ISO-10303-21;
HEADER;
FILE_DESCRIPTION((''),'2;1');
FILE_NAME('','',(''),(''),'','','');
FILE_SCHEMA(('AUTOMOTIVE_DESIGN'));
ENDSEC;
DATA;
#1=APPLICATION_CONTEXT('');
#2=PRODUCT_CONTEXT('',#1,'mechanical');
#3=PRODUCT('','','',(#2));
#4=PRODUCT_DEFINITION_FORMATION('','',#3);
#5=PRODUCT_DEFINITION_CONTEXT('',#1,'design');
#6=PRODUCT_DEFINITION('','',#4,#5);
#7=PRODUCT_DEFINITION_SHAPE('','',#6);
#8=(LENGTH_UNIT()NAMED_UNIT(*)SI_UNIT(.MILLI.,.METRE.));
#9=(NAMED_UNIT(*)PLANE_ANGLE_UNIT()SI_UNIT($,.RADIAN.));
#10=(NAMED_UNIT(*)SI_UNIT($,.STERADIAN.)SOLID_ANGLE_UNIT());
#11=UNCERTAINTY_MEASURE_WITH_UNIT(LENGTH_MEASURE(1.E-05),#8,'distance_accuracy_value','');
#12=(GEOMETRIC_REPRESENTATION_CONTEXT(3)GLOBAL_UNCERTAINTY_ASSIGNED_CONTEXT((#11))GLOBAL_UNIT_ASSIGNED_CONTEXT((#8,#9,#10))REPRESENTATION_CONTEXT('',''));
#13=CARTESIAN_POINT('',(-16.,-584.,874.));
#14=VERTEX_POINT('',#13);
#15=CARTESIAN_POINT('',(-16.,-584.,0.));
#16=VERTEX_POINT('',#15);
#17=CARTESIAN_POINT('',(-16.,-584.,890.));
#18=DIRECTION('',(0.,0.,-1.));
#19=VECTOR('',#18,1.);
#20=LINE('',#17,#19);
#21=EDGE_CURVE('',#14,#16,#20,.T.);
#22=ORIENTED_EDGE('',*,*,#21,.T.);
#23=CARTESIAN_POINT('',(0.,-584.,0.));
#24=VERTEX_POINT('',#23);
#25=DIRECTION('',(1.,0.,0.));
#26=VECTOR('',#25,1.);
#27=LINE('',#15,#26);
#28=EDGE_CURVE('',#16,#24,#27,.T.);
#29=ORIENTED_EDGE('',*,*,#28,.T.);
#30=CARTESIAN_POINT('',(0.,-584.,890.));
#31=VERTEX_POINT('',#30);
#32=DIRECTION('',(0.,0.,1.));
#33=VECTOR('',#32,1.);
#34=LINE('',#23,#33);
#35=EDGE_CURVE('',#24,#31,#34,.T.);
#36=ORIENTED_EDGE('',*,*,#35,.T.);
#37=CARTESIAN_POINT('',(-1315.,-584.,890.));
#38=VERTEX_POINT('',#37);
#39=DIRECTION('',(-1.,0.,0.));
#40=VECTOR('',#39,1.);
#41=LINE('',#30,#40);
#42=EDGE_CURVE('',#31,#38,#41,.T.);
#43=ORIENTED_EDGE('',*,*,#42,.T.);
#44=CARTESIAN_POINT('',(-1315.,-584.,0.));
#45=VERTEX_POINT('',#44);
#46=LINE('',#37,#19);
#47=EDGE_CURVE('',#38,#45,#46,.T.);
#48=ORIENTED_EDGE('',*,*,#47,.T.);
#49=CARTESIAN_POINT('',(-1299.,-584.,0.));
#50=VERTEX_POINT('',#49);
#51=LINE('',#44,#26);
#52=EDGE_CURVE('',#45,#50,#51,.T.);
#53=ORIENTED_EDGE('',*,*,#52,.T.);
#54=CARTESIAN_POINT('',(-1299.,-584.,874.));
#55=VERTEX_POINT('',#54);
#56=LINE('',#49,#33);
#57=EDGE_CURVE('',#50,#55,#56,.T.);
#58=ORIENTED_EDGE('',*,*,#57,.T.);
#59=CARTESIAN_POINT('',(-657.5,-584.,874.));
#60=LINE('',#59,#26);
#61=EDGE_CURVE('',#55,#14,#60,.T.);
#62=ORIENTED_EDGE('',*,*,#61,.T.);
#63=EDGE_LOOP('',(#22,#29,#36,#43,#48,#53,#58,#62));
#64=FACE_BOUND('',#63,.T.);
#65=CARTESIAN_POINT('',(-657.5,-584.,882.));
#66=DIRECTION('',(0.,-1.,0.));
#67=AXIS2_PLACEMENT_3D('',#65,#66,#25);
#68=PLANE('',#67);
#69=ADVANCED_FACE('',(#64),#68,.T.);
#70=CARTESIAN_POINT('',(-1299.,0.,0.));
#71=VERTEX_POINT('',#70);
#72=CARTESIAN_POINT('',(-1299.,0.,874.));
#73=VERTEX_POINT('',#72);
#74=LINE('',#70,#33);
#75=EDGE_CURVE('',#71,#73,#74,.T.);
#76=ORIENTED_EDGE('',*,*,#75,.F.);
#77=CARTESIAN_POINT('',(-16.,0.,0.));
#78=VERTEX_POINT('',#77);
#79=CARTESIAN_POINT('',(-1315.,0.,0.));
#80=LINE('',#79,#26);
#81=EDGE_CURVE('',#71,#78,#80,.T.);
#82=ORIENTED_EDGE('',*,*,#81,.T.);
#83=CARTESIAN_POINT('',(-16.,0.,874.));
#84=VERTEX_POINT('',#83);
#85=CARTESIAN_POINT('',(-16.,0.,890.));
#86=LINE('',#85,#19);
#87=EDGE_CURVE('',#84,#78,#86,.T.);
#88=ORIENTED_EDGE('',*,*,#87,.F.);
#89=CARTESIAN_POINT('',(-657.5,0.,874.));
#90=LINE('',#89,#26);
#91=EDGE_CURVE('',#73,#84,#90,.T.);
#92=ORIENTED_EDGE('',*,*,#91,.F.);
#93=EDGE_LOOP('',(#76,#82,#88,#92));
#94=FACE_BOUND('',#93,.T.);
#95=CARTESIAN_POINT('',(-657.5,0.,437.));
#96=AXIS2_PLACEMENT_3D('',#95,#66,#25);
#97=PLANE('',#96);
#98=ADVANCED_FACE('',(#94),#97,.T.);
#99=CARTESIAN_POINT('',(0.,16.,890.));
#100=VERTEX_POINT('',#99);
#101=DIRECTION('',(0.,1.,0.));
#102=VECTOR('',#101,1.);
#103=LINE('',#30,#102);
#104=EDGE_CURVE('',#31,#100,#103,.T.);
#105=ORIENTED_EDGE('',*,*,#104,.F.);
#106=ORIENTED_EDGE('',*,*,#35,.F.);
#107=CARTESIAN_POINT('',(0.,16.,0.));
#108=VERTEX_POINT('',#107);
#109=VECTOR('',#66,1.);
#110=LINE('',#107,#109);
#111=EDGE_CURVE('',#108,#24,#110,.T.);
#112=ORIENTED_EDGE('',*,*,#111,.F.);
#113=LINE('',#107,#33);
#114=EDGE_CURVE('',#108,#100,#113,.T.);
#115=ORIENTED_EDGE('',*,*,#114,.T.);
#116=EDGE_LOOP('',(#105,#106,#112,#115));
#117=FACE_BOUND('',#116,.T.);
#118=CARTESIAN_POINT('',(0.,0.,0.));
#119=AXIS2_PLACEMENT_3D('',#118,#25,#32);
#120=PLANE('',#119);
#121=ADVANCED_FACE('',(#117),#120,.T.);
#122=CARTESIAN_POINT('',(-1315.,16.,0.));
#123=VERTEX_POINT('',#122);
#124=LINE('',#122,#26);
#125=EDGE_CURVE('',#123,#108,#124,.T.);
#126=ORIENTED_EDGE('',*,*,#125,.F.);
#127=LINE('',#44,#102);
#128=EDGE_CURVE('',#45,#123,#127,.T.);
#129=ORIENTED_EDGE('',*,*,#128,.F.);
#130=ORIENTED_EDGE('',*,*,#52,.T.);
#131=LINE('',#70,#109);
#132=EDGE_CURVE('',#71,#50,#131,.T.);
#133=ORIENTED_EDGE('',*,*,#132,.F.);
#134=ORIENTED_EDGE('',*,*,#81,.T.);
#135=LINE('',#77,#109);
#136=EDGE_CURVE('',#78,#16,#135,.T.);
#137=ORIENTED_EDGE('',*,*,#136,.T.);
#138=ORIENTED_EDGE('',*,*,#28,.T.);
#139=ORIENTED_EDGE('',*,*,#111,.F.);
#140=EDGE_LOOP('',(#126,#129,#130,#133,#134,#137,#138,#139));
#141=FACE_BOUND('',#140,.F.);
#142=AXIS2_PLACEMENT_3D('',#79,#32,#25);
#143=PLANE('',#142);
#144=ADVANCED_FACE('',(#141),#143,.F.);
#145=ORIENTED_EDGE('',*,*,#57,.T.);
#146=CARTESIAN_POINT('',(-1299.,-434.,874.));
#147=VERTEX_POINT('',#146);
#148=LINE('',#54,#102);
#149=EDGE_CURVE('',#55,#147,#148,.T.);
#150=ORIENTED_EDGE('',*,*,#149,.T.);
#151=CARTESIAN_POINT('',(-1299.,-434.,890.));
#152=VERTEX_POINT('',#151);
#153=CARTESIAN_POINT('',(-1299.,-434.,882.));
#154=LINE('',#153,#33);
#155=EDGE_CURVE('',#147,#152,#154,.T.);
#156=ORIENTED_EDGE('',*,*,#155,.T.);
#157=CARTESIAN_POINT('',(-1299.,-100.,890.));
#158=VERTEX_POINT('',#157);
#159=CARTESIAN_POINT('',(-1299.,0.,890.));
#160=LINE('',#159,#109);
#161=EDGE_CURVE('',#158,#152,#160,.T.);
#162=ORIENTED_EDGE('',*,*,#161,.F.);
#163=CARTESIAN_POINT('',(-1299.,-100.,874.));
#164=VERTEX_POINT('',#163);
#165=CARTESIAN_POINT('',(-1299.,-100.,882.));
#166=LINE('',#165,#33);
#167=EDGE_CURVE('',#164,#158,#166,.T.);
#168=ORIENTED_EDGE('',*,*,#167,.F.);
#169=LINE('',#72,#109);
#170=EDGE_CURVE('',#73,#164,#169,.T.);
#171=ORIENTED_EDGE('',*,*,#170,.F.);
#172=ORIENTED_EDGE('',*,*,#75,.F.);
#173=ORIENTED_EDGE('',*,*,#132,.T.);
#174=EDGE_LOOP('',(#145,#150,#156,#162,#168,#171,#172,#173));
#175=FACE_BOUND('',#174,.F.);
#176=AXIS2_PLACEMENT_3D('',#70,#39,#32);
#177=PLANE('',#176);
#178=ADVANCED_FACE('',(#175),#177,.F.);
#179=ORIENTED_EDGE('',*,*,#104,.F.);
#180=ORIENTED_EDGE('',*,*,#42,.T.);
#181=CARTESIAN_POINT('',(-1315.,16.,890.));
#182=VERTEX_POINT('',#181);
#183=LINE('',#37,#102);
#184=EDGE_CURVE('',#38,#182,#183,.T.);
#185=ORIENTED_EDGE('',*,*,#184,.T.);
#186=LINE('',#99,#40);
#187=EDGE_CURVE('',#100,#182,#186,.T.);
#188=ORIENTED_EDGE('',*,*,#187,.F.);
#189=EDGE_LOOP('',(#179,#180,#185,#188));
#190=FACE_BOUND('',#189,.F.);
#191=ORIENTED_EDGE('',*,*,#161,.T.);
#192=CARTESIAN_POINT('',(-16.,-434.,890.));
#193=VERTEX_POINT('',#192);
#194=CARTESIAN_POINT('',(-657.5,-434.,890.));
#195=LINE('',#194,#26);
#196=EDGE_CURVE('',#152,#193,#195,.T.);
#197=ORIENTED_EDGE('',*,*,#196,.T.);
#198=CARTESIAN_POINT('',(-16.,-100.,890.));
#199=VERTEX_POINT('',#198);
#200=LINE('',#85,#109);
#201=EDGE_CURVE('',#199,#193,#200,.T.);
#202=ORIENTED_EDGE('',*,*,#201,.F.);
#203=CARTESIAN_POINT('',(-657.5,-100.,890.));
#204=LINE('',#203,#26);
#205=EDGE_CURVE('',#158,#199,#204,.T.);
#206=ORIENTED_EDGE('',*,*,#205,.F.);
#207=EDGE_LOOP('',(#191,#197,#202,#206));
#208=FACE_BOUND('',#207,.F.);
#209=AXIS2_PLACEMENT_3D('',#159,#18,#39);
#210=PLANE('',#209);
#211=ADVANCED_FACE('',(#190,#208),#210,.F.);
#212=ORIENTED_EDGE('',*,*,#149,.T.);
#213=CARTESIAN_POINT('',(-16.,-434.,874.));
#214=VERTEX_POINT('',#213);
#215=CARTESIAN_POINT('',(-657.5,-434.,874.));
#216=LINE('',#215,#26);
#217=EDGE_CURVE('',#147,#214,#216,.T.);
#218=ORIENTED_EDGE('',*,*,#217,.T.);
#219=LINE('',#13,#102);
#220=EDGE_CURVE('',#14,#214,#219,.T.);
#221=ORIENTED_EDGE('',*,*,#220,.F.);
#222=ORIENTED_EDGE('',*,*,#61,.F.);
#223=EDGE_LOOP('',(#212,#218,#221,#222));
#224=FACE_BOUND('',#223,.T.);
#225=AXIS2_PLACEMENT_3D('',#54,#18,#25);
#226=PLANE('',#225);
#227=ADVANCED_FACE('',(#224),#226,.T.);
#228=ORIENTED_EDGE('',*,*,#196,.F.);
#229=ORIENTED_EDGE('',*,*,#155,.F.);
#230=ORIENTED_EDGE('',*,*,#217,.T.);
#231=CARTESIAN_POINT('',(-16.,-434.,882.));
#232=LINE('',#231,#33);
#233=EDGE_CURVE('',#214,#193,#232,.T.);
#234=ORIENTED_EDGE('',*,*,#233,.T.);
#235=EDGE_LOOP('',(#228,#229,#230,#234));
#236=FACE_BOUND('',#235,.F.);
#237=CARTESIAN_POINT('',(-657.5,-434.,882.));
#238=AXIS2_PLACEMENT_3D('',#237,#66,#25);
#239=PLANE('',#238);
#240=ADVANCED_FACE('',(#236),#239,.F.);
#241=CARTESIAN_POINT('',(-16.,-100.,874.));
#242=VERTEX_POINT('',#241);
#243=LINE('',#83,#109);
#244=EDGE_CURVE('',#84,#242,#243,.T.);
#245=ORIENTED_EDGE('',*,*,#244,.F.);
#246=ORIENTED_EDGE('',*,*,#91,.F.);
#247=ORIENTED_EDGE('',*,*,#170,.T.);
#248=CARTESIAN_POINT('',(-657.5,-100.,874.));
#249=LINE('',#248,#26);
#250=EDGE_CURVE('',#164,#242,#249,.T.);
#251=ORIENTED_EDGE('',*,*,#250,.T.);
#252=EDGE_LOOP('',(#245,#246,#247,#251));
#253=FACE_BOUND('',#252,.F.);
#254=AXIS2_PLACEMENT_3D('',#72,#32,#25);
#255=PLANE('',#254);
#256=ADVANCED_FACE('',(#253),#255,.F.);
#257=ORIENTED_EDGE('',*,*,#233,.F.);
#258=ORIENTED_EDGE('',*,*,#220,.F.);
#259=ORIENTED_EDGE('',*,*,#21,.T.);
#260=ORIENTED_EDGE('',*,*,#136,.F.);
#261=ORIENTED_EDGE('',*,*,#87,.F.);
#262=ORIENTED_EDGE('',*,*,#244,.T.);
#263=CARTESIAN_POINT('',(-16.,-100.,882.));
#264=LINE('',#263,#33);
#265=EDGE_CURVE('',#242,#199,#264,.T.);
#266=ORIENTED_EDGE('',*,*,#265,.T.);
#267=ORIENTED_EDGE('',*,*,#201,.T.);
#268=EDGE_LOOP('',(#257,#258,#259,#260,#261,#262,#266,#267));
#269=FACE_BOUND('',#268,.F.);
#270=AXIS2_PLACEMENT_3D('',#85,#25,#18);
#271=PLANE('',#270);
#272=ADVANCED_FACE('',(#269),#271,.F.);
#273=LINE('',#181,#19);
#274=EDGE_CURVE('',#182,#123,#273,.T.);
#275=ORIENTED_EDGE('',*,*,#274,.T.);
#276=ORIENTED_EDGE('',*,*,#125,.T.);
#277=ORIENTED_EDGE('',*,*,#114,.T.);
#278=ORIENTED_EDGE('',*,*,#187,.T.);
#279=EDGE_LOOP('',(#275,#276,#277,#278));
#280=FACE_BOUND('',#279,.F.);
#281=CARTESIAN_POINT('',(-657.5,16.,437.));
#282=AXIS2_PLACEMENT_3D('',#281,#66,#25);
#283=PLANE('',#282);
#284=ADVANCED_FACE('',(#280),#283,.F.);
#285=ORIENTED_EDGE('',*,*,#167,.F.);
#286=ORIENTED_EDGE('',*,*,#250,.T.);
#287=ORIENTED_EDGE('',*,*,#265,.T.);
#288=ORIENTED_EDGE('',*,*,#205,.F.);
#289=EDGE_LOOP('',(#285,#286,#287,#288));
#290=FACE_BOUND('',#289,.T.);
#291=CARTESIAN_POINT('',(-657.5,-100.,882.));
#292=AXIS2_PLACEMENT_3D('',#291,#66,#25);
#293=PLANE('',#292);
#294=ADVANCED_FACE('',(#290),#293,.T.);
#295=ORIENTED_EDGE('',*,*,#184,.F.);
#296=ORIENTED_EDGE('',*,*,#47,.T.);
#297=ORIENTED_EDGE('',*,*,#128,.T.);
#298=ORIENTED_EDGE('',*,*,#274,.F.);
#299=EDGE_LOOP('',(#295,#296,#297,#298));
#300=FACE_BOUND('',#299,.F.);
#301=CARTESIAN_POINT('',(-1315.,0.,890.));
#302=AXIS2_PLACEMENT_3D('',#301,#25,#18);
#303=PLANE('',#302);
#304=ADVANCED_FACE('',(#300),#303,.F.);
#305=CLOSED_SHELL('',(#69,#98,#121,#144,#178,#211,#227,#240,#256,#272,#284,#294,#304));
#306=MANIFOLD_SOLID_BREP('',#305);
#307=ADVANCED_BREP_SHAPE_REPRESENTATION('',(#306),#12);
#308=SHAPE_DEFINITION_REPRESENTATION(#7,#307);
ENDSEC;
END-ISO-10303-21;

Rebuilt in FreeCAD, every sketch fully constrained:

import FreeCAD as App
import Part
import Sketcher


def add_polygon(sketch, points):
    """Adds a closed chain of lines whose ends are joined by coincident constraints."""
    first, n = sketch.GeometryCount, len(points)
    for a, b in zip(points, points[1:] + points[:1]):
        sketch.addGeometry(Part.LineSegment(App.Vector(*a, 0), App.Vector(*b, 0)), False)
    for i in range(n):
        sketch.addConstraint(Sketcher.Constraint("Coincident", first + i, 2, first + (i + 1) % n, 1))

doc = App.newDocument("Part")
body = doc.addObject("PartDesign::Body", "Body")

sketch1 = doc.addObject("Sketcher::SketchObject", "Sketch")
body.addObject(sketch1)
sketch1.AttachmentSupport = (doc.XZ_Plane, [""])
sketch1.MapMode = "FlatFace"
add_polygon(sketch1, [(0, 0), (0, 890), (-1315, 890), (-1315, 0)])
sketch1.addConstraint([
    Sketcher.Constraint("Vertical", 0),
    Sketcher.Constraint("Horizontal", 1),
    Sketcher.Constraint("Vertical", 2),
    Sketcher.Constraint("Horizontal", 3),
    Sketcher.Constraint("Coincident", 3, 2, -1, 1),
    Sketcher.Constraint("DistanceX", 1, 2, 1, 1, 1315.0),
    Sketcher.Constraint("DistanceY", 0, 1, 0, 2, 890.0),
])
pad1 = doc.addObject("PartDesign::Pad", "Pad")
body.addObject(pad1)
pad1.Profile = sketch1
pad1.Length = 16
pad1.Reversed = True

sketch2 = doc.addObject("Sketcher::SketchObject", "Sketch001")
body.addObject(sketch2)
sketch2.AttachmentSupport = (doc.XZ_Plane, [""])
sketch2.MapMode = "FlatFace"
add_polygon(sketch2, [(-1315, 0), (-1299, 0), (-1299, 890), (-1315, 890)])
add_polygon(sketch2, [(-16, 0), (0, 0), (0, 890), (-16, 890)])
sketch2.addConstraint([
    Sketcher.Constraint("Horizontal", 0),
    Sketcher.Constraint("Vertical", 1),
    Sketcher.Constraint("Horizontal", 2),
    Sketcher.Constraint("Vertical", 3),
    Sketcher.Constraint("Horizontal", 4),
    Sketcher.Constraint("Vertical", 5),
    Sketcher.Constraint("Horizontal", 6),
    Sketcher.Constraint("Vertical", 7),
    Sketcher.Constraint("Coincident", 4, 2, -1, 1),
    Sketcher.Constraint("PointOnObject", 0, 2, -1),
    Sketcher.Constraint("Horizontal", 2, 2, 5, 2),
    Sketcher.Constraint("Equal", 2, 4),
    Sketcher.Constraint("DistanceX", 0, 1, 0, 2, 16.0),
    Sketcher.Constraint("DistanceY", 1, 1, 1, 2, 890.0),
    Sketcher.Constraint("DistanceX", 0, 2, -1, 1, 1299.0),
])
pad2 = doc.addObject("PartDesign::Pad", "Pad001")
body.addObject(pad2)
pad2.Profile = sketch2
pad2.Length = 584

sketch3 = doc.addObject("Sketcher::SketchObject", "Sketch002")
body.addObject(sketch3)
sketch3.AttachmentSupport = (doc.XZ_Plane, [""])
sketch3.MapMode = "FlatFace"
add_polygon(sketch3, [(-1299, 890), (-1299, 874), (-16, 874), (-16, 890)])
sketch3.addConstraint([
    Sketcher.Constraint("Vertical", 0),
    Sketcher.Constraint("Horizontal", 1),
    Sketcher.Constraint("Vertical", 2),
    Sketcher.Constraint("Horizontal", 3),
    Sketcher.Constraint("DistanceX", 1, 1, 1, 2, 1283.0),
    Sketcher.Constraint("DistanceY", 0, 2, 0, 1, 16.0),
    Sketcher.Constraint("DistanceX", 0, 2, -1, 1, 1299.0),
    Sketcher.Constraint("DistanceY", -1, 1, 0, 2, 874.0),
])
pad3 = doc.addObject("PartDesign::Pad", "Pad002")
body.addObject(pad3)
pad3.Profile = sketch3
pad3.Length = 100

sketch4 = doc.addObject("Sketcher::SketchObject", "Sketch003")
body.addObject(sketch4)
sketch4.AttachmentSupport = (doc.XZ_Plane, [""])
sketch4.MapMode = "FlatFace"
sketch4.AttachmentOffset = App.Placement(App.Vector(0, 0, 584), App.Rotation())
add_polygon(sketch4, [(-1299, 890), (-1299, 874), (-16, 874), (-16, 890)])
sketch4.addConstraint([
    Sketcher.Constraint("Vertical", 0),
    Sketcher.Constraint("Horizontal", 1),
    Sketcher.Constraint("Vertical", 2),
    Sketcher.Constraint("Horizontal", 3),
    Sketcher.Constraint("DistanceX", 1, 1, 1, 2, 1283.0),
    Sketcher.Constraint("DistanceY", 0, 2, 0, 1, 16.0),
    Sketcher.Constraint("DistanceX", 0, 2, -1, 1, 1299.0),
    Sketcher.Constraint("DistanceY", -1, 1, 0, 2, 874.0),
])
pad4 = doc.addObject("PartDesign::Pad", "Pad003")
body.addObject(pad4)
pad4.Profile = sketch4
pad4.Length = 150
pad4.Reversed = True

doc.recompute()
